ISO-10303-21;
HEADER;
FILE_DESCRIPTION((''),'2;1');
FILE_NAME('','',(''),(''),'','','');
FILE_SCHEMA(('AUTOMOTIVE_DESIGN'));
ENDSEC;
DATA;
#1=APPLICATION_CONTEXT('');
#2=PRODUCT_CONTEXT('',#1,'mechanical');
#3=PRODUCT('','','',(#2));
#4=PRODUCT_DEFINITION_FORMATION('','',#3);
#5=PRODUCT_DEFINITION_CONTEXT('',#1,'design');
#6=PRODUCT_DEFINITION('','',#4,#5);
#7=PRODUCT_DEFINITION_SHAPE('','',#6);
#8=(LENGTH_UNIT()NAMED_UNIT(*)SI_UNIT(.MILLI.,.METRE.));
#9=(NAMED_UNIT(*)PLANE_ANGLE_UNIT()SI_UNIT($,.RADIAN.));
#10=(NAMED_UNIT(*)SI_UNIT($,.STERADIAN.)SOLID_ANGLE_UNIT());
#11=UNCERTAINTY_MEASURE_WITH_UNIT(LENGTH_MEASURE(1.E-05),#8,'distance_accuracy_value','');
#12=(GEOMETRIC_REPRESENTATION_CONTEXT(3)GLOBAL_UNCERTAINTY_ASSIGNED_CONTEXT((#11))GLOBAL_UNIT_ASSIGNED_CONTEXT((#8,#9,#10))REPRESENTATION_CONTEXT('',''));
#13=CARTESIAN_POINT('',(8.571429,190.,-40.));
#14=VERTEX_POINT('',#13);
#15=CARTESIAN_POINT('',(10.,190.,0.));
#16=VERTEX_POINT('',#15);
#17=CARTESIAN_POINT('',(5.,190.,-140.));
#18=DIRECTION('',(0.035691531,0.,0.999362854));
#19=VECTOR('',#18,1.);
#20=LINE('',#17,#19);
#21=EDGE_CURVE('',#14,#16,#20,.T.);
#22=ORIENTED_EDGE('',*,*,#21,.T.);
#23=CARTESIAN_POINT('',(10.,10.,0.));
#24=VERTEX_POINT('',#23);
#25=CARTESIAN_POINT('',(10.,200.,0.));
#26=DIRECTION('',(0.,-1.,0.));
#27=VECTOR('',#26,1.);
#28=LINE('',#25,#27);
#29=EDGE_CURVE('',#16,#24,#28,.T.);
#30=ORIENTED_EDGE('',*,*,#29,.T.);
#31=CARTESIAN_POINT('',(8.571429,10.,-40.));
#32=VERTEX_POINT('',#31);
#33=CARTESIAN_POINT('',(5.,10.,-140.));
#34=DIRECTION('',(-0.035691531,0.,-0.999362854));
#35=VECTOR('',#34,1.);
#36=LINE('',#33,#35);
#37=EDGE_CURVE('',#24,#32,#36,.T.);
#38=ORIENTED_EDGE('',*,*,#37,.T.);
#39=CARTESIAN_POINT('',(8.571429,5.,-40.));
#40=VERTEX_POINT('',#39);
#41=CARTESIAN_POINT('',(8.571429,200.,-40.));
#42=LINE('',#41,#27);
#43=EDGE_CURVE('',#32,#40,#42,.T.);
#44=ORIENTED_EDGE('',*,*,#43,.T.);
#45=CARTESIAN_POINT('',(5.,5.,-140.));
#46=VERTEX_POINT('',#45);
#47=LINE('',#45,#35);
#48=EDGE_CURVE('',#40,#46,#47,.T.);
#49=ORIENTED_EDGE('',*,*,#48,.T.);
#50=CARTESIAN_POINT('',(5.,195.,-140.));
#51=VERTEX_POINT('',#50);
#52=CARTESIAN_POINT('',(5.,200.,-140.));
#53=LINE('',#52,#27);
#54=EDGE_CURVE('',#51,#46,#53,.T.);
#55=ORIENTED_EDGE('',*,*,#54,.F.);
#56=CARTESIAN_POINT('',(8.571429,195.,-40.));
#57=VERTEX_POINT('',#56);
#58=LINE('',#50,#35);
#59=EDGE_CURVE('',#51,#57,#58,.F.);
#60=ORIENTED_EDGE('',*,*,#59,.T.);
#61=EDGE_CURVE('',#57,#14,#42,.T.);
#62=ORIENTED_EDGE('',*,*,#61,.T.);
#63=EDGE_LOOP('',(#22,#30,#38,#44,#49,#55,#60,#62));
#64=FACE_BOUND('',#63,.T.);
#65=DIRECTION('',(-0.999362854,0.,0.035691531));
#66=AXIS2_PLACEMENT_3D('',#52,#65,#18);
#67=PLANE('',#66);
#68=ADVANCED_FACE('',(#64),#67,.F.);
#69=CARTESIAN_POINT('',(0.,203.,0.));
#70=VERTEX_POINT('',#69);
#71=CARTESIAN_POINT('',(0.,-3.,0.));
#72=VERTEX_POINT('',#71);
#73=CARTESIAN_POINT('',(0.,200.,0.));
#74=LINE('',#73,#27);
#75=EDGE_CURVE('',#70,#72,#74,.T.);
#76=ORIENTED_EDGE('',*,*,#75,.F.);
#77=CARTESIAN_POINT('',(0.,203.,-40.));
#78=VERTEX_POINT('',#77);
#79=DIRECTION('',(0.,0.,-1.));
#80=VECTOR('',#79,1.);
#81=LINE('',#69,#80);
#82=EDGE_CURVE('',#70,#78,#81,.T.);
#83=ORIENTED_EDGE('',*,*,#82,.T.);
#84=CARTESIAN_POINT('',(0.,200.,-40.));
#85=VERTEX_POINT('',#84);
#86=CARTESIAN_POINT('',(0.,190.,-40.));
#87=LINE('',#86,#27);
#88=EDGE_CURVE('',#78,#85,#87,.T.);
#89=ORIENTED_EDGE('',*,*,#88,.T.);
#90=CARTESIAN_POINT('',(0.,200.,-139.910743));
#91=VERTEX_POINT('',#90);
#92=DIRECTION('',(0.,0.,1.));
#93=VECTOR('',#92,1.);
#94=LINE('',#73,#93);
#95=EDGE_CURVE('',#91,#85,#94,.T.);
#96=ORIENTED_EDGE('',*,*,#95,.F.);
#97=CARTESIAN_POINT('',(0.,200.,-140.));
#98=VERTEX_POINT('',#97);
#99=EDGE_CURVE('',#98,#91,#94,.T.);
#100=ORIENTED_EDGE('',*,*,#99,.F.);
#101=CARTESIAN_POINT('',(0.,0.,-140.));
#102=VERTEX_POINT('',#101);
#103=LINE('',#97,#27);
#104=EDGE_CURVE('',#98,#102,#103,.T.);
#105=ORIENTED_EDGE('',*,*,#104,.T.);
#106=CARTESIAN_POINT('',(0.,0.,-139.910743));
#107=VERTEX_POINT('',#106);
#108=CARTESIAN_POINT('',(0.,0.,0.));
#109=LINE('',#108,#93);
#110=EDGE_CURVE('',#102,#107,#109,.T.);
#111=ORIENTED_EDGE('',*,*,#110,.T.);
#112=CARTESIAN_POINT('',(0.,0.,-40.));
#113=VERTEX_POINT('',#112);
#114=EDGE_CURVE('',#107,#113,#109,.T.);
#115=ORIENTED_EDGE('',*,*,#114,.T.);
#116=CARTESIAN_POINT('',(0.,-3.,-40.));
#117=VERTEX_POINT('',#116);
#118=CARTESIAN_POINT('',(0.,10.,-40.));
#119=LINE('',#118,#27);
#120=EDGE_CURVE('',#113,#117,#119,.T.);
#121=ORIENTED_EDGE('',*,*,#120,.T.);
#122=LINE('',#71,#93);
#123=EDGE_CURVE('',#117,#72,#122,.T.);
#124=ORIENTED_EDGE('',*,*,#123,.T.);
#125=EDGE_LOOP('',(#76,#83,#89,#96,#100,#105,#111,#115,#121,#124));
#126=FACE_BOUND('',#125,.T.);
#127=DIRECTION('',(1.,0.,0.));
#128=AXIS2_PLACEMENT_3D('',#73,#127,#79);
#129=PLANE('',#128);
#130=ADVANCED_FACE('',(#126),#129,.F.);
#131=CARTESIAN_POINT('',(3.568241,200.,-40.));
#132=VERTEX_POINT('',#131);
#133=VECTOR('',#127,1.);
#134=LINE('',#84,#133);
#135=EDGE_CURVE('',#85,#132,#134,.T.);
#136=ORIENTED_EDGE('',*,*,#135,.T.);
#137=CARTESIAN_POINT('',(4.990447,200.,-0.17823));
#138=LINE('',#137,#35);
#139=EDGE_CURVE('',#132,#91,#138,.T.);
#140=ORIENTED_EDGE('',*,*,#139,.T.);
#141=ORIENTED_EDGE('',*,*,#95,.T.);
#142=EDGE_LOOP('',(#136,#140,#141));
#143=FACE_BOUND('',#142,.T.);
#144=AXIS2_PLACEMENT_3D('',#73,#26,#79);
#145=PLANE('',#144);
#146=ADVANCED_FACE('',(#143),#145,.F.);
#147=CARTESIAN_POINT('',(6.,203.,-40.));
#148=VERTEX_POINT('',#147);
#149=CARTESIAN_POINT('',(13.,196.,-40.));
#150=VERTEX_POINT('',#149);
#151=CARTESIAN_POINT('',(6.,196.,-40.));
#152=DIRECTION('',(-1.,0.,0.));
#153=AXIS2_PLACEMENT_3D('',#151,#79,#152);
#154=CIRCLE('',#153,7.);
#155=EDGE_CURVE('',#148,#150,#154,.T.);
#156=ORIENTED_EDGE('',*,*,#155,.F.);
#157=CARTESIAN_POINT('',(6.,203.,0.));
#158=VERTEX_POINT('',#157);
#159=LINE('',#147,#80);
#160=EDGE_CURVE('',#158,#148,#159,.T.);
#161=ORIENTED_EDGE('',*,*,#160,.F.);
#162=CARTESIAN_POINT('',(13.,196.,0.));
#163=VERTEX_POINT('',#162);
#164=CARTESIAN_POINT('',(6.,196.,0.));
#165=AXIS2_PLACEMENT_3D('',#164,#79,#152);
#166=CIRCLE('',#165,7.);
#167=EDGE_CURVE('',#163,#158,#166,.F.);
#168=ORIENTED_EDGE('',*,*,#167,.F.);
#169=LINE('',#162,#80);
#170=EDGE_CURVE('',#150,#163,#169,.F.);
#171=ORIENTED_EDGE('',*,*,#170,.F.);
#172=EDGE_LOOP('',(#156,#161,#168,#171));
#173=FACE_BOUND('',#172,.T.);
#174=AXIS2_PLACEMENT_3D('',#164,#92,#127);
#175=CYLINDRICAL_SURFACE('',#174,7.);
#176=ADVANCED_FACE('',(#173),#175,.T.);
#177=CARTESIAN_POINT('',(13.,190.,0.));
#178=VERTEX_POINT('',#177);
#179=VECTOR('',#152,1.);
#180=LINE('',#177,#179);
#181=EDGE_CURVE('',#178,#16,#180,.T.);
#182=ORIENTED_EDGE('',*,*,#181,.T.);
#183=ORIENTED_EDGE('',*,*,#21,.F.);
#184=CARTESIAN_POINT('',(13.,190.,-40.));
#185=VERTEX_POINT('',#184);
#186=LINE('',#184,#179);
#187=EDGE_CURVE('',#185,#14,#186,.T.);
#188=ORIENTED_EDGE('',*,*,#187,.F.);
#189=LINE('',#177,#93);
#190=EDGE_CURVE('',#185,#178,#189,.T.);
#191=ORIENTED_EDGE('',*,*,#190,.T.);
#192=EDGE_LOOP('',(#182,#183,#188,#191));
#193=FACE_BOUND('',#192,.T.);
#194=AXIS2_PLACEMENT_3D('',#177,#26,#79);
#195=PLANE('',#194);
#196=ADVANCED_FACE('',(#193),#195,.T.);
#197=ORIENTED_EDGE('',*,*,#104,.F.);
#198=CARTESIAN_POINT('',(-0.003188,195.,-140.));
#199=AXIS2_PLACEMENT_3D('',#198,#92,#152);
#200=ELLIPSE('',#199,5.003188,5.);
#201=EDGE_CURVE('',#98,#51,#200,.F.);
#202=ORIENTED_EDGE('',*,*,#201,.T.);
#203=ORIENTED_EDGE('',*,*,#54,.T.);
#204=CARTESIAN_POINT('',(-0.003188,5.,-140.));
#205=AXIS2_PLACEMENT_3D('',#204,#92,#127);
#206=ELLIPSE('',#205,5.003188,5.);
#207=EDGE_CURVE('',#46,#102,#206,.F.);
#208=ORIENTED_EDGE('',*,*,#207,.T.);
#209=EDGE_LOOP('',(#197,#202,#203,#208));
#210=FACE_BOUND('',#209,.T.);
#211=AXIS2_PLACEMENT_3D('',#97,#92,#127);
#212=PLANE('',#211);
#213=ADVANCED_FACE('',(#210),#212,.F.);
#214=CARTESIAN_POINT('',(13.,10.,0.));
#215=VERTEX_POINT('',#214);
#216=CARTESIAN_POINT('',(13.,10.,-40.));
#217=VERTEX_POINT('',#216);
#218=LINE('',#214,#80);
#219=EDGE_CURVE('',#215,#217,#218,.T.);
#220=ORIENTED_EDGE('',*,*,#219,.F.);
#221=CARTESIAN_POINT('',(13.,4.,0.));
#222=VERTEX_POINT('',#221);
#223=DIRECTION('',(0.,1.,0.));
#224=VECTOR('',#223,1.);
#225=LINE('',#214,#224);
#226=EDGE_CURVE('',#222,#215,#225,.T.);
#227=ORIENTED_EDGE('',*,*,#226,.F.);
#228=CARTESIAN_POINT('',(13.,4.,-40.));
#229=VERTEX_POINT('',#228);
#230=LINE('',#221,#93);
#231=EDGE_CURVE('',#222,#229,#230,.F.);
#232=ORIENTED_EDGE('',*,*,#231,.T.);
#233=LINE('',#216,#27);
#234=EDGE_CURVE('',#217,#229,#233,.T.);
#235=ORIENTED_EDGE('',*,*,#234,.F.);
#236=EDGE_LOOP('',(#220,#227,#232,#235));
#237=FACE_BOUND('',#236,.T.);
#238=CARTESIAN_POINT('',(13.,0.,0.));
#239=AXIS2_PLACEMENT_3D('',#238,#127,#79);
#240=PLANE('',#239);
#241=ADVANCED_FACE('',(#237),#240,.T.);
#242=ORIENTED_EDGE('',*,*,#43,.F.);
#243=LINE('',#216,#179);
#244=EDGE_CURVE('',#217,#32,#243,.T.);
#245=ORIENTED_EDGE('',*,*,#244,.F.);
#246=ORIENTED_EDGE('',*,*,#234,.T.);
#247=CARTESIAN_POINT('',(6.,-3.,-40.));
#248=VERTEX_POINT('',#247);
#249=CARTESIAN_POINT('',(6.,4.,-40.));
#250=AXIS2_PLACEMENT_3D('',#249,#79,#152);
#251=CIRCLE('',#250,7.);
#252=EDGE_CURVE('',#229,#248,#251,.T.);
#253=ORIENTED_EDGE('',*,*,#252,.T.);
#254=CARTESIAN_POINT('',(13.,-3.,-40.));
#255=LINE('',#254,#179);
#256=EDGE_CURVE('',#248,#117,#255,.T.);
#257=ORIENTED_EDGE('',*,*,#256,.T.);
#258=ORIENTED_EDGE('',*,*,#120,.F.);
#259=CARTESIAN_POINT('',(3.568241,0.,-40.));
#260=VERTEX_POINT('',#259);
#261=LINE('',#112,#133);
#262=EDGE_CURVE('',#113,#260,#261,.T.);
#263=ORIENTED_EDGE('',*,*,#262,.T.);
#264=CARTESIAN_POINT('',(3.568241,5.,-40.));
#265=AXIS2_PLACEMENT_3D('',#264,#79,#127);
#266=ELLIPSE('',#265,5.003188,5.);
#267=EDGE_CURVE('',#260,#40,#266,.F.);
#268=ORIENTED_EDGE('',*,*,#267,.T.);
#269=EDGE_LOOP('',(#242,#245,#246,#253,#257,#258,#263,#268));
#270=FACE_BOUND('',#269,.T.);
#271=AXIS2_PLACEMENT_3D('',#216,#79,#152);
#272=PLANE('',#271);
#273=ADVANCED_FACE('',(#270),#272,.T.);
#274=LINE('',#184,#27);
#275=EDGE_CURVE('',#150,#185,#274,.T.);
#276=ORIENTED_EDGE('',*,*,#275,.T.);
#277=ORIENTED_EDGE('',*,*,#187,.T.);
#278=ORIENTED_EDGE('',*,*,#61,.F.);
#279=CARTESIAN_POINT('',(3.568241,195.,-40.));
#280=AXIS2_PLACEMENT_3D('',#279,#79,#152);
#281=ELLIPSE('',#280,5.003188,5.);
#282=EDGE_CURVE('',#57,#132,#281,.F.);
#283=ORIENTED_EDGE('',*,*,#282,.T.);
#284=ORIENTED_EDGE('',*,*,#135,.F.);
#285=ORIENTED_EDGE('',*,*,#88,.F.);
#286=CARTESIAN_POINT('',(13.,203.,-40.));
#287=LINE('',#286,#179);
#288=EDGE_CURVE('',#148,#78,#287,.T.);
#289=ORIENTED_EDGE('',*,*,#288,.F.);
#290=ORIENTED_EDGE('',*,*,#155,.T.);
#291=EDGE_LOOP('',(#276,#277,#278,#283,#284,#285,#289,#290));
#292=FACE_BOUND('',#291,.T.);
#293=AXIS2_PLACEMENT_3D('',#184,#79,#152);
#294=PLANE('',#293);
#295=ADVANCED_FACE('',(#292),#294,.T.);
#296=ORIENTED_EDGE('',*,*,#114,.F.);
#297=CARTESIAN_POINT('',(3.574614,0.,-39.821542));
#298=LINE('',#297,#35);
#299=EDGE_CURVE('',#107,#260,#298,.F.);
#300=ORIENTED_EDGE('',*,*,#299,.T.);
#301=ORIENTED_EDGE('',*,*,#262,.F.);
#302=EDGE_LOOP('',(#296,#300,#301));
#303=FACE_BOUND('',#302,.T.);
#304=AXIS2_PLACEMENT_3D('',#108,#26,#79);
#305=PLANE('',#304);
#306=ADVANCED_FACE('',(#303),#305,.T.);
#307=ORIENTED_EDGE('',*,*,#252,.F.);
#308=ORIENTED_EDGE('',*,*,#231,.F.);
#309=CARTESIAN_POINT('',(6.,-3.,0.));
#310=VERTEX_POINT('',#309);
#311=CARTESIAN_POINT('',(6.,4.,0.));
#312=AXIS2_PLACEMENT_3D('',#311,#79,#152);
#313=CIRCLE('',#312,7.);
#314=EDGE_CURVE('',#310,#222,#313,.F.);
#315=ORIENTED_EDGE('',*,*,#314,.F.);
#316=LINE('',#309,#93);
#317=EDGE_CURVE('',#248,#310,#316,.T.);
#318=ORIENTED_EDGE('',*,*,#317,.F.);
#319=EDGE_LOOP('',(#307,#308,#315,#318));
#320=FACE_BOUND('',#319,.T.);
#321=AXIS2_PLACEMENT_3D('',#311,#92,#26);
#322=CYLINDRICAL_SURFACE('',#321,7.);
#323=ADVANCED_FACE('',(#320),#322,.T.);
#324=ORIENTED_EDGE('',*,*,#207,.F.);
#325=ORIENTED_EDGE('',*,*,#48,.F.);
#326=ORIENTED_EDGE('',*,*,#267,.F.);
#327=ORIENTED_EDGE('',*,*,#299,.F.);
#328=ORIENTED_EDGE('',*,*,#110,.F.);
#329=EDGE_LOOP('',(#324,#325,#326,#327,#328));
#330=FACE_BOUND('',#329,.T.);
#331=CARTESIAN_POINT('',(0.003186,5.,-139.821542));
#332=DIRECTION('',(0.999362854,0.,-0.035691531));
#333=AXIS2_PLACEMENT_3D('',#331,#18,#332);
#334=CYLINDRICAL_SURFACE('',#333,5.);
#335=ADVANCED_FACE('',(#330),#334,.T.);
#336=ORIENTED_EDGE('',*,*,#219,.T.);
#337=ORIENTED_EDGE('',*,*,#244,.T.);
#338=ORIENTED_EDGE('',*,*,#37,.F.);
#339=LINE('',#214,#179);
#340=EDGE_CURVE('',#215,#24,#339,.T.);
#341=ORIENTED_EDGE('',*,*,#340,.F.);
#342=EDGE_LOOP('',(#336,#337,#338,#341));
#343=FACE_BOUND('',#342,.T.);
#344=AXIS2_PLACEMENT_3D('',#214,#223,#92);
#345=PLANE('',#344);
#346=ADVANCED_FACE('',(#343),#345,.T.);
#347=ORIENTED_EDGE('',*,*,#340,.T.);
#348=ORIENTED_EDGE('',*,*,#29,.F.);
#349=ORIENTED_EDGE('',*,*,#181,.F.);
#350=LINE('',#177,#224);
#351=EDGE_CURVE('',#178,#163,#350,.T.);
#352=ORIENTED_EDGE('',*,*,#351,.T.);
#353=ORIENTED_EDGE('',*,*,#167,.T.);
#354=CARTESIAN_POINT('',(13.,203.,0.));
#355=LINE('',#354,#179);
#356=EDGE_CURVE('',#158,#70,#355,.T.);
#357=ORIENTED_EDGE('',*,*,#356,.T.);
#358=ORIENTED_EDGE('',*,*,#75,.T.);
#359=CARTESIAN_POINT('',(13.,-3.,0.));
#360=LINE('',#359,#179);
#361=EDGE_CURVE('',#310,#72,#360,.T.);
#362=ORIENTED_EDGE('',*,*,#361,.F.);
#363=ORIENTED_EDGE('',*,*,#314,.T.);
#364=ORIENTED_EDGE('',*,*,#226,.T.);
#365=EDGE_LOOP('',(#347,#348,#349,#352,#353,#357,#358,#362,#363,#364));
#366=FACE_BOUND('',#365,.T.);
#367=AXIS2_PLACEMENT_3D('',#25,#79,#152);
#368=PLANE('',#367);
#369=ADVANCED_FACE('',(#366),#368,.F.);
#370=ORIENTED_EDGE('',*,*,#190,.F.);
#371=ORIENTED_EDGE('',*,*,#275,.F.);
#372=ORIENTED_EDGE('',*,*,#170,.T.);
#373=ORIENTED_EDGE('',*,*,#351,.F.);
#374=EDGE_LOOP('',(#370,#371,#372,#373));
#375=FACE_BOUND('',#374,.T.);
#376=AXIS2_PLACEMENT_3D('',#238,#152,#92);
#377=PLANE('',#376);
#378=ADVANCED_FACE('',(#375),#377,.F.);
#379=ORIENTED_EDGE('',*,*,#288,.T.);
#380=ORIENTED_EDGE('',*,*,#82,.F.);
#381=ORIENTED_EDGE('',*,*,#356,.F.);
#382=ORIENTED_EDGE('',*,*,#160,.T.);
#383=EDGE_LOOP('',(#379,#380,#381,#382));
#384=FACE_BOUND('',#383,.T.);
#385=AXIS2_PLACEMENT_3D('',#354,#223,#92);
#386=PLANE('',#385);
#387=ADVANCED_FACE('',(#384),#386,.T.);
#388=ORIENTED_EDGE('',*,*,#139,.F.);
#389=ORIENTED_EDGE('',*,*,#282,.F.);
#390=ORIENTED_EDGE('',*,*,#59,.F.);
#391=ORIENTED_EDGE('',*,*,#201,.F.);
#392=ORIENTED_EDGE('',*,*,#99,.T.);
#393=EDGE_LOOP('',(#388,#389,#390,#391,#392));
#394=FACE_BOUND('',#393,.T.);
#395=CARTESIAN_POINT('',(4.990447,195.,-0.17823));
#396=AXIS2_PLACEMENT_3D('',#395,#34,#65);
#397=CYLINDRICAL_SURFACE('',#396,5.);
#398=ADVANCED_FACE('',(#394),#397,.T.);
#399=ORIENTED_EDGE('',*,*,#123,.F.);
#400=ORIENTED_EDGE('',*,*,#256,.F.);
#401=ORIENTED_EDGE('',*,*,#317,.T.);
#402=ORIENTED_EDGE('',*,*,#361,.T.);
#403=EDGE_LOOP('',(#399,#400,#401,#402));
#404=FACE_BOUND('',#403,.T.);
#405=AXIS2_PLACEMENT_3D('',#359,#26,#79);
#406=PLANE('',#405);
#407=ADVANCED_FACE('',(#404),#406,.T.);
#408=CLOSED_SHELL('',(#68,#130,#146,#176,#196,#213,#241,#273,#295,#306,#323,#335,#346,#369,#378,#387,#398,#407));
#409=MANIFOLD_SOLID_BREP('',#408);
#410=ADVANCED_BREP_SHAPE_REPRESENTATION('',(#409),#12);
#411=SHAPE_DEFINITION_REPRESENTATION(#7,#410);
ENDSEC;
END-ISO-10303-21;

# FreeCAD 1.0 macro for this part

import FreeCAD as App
import Part
import Sketcher

V = App.Vector
Q = App.Units.Quantity


def edges_at(feature, points):
    """Names of the edges that pass closest to the given points."""
    edges = feature.Shape.Edges
    near = lambda p: min(range(len(edges)), key=lambda i: edges[i].distToShape(Part.Vertex(*p))[0])
    return sorted({f"Edge{near(p) + 1}" for p in points})


def add_polygon(sketch, points):
    """Adds a closed chain of lines whose ends are joined by coincident constraints."""
    first, n = sketch.GeometryCount, len(points)
    for a, b in zip(points, points[1:] + points[:1]):
        sketch.addGeometry(Part.LineSegment(App.Vector(*a, 0), App.Vector(*b, 0)), False)
    for i in range(n):
        sketch.addConstraint(Sketcher.Constraint("Coincident", first + i, 2, first + (i + 1) % n, 1))

doc = App.newDocument("Part")
body = doc.addObject("PartDesign::Body", "Body")

# Sketch on XZ plane
sketch1 = body.newObject("Sketcher::SketchObject", "Sketch")
sketch1.AttachmentSupport = (doc.getObject("XZ_Plane"), [""])
sketch1.MapMode = "FlatFace"
add_polygon(sketch1, [(10, 0), (5, -140), (0, -140), (0, 0)])  # lines 0-3
sketch1.addConstraint([
    Sketcher.Constraint("Horizontal", 1),
    Sketcher.Constraint("Vertical", 2),
    Sketcher.Constraint("Horizontal", 3),
    Sketcher.Constraint("Coincident", 2, 2, -1, 1),
    Sketcher.Constraint("DistanceX", 1, 2, 1, 1, Q("5 mm")),
    Sketcher.Constraint("DistanceX", 3, 1, 3, 2, Q("10 mm")),
    Sketcher.Constraint("DistanceY", 2, 1, 2, 2, Q("140 mm")),
])
pad1 = body.newObject("PartDesign::Pad", "Pad")
pad1.Profile = sketch1
pad1.Length = 200
pad1.Reversed = True

# Sketch on YZ plane
sketch2 = body.newObject("Sketcher::SketchObject", "Sketch001")
sketch2.AttachmentSupport = (doc.getObject("YZ_Plane"), [""])
sketch2.MapMode = "FlatFace"
add_polygon(sketch2, [(203, -40), (190, -40), (190, 0), (203, 0)])  # lines 0-3
add_polygon(sketch2, [(10, -40), (-3, -40), (-3, 0), (10, 0)])  # lines 4-7
sketch2.addConstraint([
    Sketcher.Constraint("Horizontal", 0),
    Sketcher.Constraint("Vertical", 1),
    Sketcher.Constraint("Horizontal", 2),
    Sketcher.Constraint("Vertical", 3),
    Sketcher.Constraint("Horizontal", 4),
    Sketcher.Constraint("Vertical", 5),
    Sketcher.Constraint("Horizontal", 6),
    Sketcher.Constraint("Vertical", 7),
    Sketcher.Constraint("PointOnObject", 1, 2, -1),
    Sketcher.Constraint("PointOnObject", 5, 2, -1),
    Sketcher.Constraint("Horizontal", 3, 2, 4, 2),
    Sketcher.Constraint("Equal", 2, 4),
    Sketcher.Constraint("DistanceX", 0, 2, 0, 1, Q("13 mm")),
    Sketcher.Constraint("DistanceY", 1, 1, 1, 2, Q("40 mm")),
    Sketcher.Constraint("DistanceX", -1, 1, 0, 2, Q("190 mm")),
    Sketcher.Constraint("DistanceX", 4, 2, -1, 1, Q("3 mm")),
])
pad2 = body.newObject("PartDesign::Pad", "Pad001")
pad2.Profile = sketch2
pad2.Length = 13
doc.recompute()

fillet = body.newObject("PartDesign::Fillet", "Fillet")
fillet.Base = (pad2, edges_at(pad2, [(13, 203, -20), (13, -3, -20)]))
fillet.Radius = 7
doc.recompute()

fillet2 = body.newObject("PartDesign::Fillet", "Fillet001")
fillet2.Base = (fillet, edges_at(fillet, [(6.786, 0, -90), (6.786, 200, -90)]))
fillet2.Radius = 5

doc.recompute()
